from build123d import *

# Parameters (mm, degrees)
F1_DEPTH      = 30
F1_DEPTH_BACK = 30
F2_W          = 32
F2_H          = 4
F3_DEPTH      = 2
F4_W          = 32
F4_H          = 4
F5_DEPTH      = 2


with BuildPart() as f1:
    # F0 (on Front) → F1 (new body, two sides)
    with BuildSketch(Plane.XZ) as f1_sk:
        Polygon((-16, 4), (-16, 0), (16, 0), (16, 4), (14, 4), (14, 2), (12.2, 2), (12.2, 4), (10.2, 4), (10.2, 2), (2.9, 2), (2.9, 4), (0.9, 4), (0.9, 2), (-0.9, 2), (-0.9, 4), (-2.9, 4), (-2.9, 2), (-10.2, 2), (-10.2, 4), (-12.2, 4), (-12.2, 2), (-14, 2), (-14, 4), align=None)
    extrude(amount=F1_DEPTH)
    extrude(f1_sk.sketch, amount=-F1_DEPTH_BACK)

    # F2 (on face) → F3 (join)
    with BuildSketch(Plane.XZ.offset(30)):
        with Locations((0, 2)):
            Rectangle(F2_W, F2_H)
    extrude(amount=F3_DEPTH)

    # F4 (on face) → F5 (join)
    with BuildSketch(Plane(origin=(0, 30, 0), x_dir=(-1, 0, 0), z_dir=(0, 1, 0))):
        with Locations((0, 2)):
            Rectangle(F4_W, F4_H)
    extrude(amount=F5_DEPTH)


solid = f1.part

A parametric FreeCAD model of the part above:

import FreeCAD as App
import Part
import Sketcher
Q = App.Units.Quantity


def add_polygon(sketch, points):
    """Adds a closed chain of lines whose ends are joined by coincident constraints."""
    first, n = sketch.GeometryCount, len(points)
    for a, b in zip(points, points[1:] + points[:1]):
        sketch.addGeometry(Part.LineSegment(App.Vector(*a, 0), App.Vector(*b, 0)), False)
    for i in range(n):
        sketch.addConstraint(Sketcher.Constraint("Coincident", first + i, 2, first + (i + 1) % n, 1))

doc = App.newDocument("Part")
params = doc.addObject("Spreadsheet::Sheet", "Params")
for row, (alias, value) in enumerate([
    ("sketch1_width", "32 mm"),
    ("sketch1_width2", "2 mm"),
    ("sketch1_height", "4 mm"),
    ("sketch1_width3", "1.8 mm"),
    ("pad1_length", "30 mm"),
    ("pad1_length2", "30 mm"),
    ("sketch2_width", "32 mm"),
    ("sketch2_height", "4 mm"),
    ("pad2_length", "2 mm"),
    ("sketch3_width", "32 mm"),
    ("sketch3_height", "4 mm"),
    ("pad3_length", "2 mm"),
], start=1):
    params.set(f"A{row}", alias)
    params.set(f"B{row}", "=" + value)
    params.setAlias(f"B{row}", alias)

body = doc.addObject("PartDesign::Body", "Body")

sketch1 = doc.addObject("Sketcher::SketchObject", "Sketch")
body.addObject(sketch1)
sketch1.AttachmentSupport = (doc.XZ_Plane, [""])
sketch1.MapMode = "FlatFace"
add_polygon(sketch1, [(-16, 4), (-16, 0), (16, 0), (16, 4), (14, 4), (14, 2), (12.2, 2), (12.2, 4), (10.2, 4), (10.2, 2), (2.9, 2), (2.9, 4), (0.9, 4), (0.9, 2), (-0.9, 2), (-0.9, 4), (-2.9, 4), (-2.9, 2), (-10.2, 2), (-10.2, 4), (-12.2, 4), (-12.2, 2), (-14, 2), (-14, 4)])
sketch1.addConstraint(Sketcher.Constraint("Vertical", 0))
sketch1.addConstraint(Sketcher.Constraint("Horizontal", 1))
sketch1.addConstraint(Sketcher.Constraint("Vertical", 2))
sketch1.addConstraint(Sketcher.Constraint("Horizontal", 3))
sketch1.addConstraint(Sketcher.Constraint("Vertical", 4))
sketch1.addConstraint(Sketcher.Constraint("Horizontal", 5))
sketch1.addConstraint(Sketcher.Constraint("Vertical", 6))
sketch1.addConstraint(Sketcher.Constraint("Horizontal", 7))
sketch1.addConstraint(Sketcher.Constraint("Vertical", 8))
sketch1.addConstraint(Sketcher.Constraint("Horizontal", 9))
sketch1.addConstraint(Sketcher.Constraint("Vertical", 10))
sketch1.addConstraint(Sketcher.Constraint("Horizontal", 11))
sketch1.addConstraint(Sketcher.Constraint("Vertical", 12))
sketch1.addConstraint(Sketcher.Constraint("Horizontal", 13))
sketch1.addConstraint(Sketcher.Constraint("Vertical", 14))
sketch1.addConstraint(Sketcher.Constraint("Horizontal", 15))
sketch1.addConstraint(Sketcher.Constraint("Vertical", 16))
sketch1.addConstraint(Sketcher.Constraint("Horizontal", 17))
sketch1.addConstraint(Sketcher.Constraint("Vertical", 18))
sketch1.addConstraint(Sketcher.Constraint("Horizontal", 19))
sketch1.addConstraint(Sketcher.Constraint("Vertical", 20))
sketch1.addConstraint(Sketcher.Constraint("Horizontal", 21))
sketch1.addConstraint(Sketcher.Constraint("Vertical", 22))
sketch1.addConstraint(Sketcher.Constraint("Horizontal", 23))
sketch1.addConstraint(Sketcher.Constraint("Symmetric", 0, 2, 1, 2, -1, 1))
sketch1.addConstraint(Sketcher.Constraint("Symmetric", 11, 2, 14, 2, -2))
sketch1.addConstraint(Sketcher.Constraint("Symmetric", 9, 2, 16, 2, -2))
sketch1.addConstraint(Sketcher.Constraint("Symmetric", 7, 2, 18, 2, -2))
sketch1.addConstraint(Sketcher.Constraint("Symmetric", 5, 2, 20, 2, -2))
sketch1.addConstraint(Sketcher.Constraint("Symmetric", 3, 2, 22, 2, -2))
sketch1.addConstraint(Sketcher.Constraint("Horizontal", 3, 2, 6, 2))
sketch1.addConstraint(Sketcher.Constraint("Horizontal", 5, 2, 8, 2))
sketch1.addConstraint(Sketcher.Constraint("Horizontal", 7, 2, 10, 2))
sketch1.addConstraint(Sketcher.Constraint("Horizontal", 9, 2, 12, 2))
sketch1.addConstraint(Sketcher.Constraint("Equal", 3, 7))
sketch1.addConstraint(Sketcher.Constraint("Equal", 7, 11))
sketch1.addConstraint(Sketcher.Constraint("Equal", 5, 13))
sketch1.addConstraint(Sketcher.Constraint("Equal", 23, 4))
sketch1.addConstraint(Sketcher.Constraint("DistanceX", 1, 1, 1, 2, Q("32 mm")))
sketch1.addConstraint(Sketcher.Constraint("DistanceX", 3, 2, 3, 1, Q("2 mm")))
sketch1.addConstraint(Sketcher.Constraint("DistanceY", 0, 2, 0, 1, Q("4 mm")))
sketch1.addConstraint(Sketcher.Constraint("DistanceX", 5, 2, 5, 1, Q("1.8 mm")))
sketch1.setExpression("Constraints[62]", "Params.sketch1_width")
sketch1.setExpression("Constraints[63]", "Params.sketch1_width2")
sketch1.setExpression("Constraints[64]", "Params.sketch1_height")
sketch1.setExpression("Constraints[65]", "Params.sketch1_width3")
pad1 = doc.addObject("PartDesign::Pad", "Pad")
body.addObject(pad1)
pad1.Profile = sketch1
pad1.Type = "TwoLengths"
pad1.setExpression("Length", "Params.pad1_length")
pad1.setExpression("Length2", "Params.pad1_length2")

sketch2 = doc.addObject("Sketcher::SketchObject", "Sketch001")
body.addObject(sketch2)
sketch2.AttachmentSupport = (doc.XZ_Plane, [""])
sketch2.MapMode = "FlatFace"
sketch2.AttachmentOffset = App.Placement(App.Vector(0, 0, 30), App.Rotation())
add_polygon(sketch2, [(-16, 4), (-16, 0), (16, 0), (16, 4)])
sketch2.addConstraint(Sketcher.Constraint("Vertical", 0))
sketch2.addConstraint(Sketcher.Constraint("Horizontal", 1))
sketch2.addConstraint(Sketcher.Constraint("Vertical", 2))
sketch2.addConstraint(Sketcher.Constraint("Horizontal", 3))
sketch2.addConstraint(Sketcher.Constraint("Symmetric", 0, 2, 1, 2, -1, 1))
sketch2.addConstraint(Sketcher.Constraint("DistanceX", 1, 1, 1, 2, Q("32 mm")))
sketch2.addConstraint(Sketcher.Constraint("DistanceY", 0, 2, 0, 1, Q("4 mm")))
sketch2.setExpression("Constraints[9]", "Params.sketch2_width")
sketch2.setExpression("Constraints[10]", "Params.sketch2_height")
pad2 = doc.addObject("PartDesign::Pad", "Pad001")
body.addObject(pad2)
pad2.Profile = sketch2
pad2.setExpression("Length", "Params.pad2_length")

sketch3 = doc.addObject("Sketcher::SketchObject", "Sketch002")
body.addObject(sketch3)
sketch3.AttachmentSupport = (doc.XZ_Plane, [""])
sketch3.MapMode = "FlatFace"
sketch3.AttachmentOffset = App.Placement(App.Vector(0, 0, -30), App.Rotation())
add_polygon(sketch3, [(16, 4), (16, 0), (-16, 0), (-16, 4)])
sketch3.addConstraint(Sketcher.Constraint("Vertical", 0))
sketch3.addConstraint(Sketcher.Constraint("Horizontal", 1))
sketch3.addConstraint(Sketcher.Constraint("Vertical", 2))
sketch3.addConstraint(Sketcher.Constraint("Horizontal", 3))
sketch3.addConstraint(Sketcher.Constraint("Symmetric", 0, 2, 1, 2, -1, 1))
sketch3.addConstraint(Sketcher.Constraint("DistanceX", 1, 2, 1, 1, Q("32 mm")))
sketch3.addConstraint(Sketcher.Constraint("DistanceY", 0, 2, 0, 1, Q("4 mm")))
sketch3.setExpression("Constraints[9]", "Params.sketch3_width")
sketch3.setExpression("Constraints[10]", "Params.sketch3_height")
pad3 = doc.addObject("PartDesign::Pad", "Pad002")
body.addObject(pad3)
pad3.Profile = sketch3
pad3.setExpression("Length", "Params.pad3_length")
pad3.Reversed = True

doc.recompute()
